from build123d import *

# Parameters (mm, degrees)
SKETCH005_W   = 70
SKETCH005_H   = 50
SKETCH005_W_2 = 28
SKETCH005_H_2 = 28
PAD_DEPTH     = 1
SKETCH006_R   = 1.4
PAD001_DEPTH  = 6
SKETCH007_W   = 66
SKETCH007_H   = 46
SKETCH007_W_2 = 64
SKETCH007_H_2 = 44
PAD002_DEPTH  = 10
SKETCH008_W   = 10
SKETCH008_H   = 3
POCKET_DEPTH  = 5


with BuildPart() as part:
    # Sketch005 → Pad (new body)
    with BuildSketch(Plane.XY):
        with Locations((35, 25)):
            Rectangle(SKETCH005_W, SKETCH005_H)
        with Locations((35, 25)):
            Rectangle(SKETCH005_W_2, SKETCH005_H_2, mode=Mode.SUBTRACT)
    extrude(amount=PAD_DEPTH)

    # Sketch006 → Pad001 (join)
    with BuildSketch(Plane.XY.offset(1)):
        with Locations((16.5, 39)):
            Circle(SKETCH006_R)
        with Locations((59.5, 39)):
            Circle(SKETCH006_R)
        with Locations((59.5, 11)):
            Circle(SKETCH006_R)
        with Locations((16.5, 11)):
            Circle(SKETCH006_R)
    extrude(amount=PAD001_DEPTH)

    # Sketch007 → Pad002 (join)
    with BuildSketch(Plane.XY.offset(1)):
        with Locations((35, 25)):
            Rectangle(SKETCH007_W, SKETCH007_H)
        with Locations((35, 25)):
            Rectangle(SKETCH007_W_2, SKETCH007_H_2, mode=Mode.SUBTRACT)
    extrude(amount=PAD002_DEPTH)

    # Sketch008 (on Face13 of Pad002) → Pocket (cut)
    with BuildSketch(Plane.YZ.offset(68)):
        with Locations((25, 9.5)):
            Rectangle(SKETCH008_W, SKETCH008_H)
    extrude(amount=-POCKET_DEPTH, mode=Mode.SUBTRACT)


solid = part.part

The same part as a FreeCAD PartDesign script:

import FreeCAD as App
import Part
import Sketcher
from FreeCAD import Vector


def add_polygon(sketch, points):
    """Adds a closed chain of lines whose ends are joined by coincident constraints."""
    first, n = sketch.GeometryCount, len(points)
    for a, b in zip(points, points[1:] + points[:1]):
        sketch.addGeometry(Part.LineSegment(App.Vector(*a, 0), App.Vector(*b, 0)), False)
    for i in range(n):
        sketch.addConstraint(Sketcher.Constraint("Coincident", first + i, 2, first + (i + 1) % n, 1))

doc = App.newDocument("Part")
body = doc.addObject("PartDesign::Body", "Body")

sketch1 = body.newObject("Sketcher::SketchObject", "Sketch")
sketch1.AttachmentSupport = (doc.getObject("XY_Plane"), [""])
sketch1.MapMode = "FlatFace"
add_polygon(sketch1, [(0, 50), (0, 0), (70, 0), (70, 50)])
add_polygon(sketch1, [(49, 11), (21, 11), (21, 39), (49, 39)])
sketch1.addConstraint([
    Sketcher.Constraint("Vertical", 0),
    Sketcher.Constraint("Horizontal", 1),
    Sketcher.Constraint("Vertical", 2),
    Sketcher.Constraint("Horizontal", 3),
    Sketcher.Constraint("Horizontal", 4),
    Sketcher.Constraint("Vertical", 5),
    Sketcher.Constraint("Horizontal", 6),
    Sketcher.Constraint("Vertical", 7),
    Sketcher.Constraint("Coincident", 0, 2, -1, 1),
    Sketcher.Constraint("Equal", 6, 5),
    Sketcher.Constraint("DistanceX", 1, 1, 1, 2, 70.0),
    Sketcher.Constraint("DistanceX", 4, 2, 4, 1, 28.0),
    Sketcher.Constraint("DistanceY", 0, 2, 0, 1, 50.0),
    Sketcher.Constraint("DistanceX", -1, 1, 4, 2, 21.0),
    Sketcher.Constraint("DistanceY", -1, 1, 4, 2, 11.0),
])
pad1 = body.newObject("PartDesign::Pad", "Pad")
pad1.Profile = sketch1
pad1.Length = 1

sketch2 = body.newObject("Sketcher::SketchObject", "Sketch001")
sketch2.AttachmentSupport = (doc.getObject("XY_Plane"), [""])
sketch2.MapMode = "FlatFace"
sketch2.AttachmentOffset = App.Placement(Vector(0, 0, 1), App.Rotation())
sketch2.addGeometry([
    Part.Circle(Vector(16.5, 39, 0), Vector(0, 0, 1), 1.4),
    Part.Circle(Vector(59.5, 39, 0), Vector(0, 0, 1), 1.4),
    Part.Circle(Vector(59.5, 11, 0), Vector(0, 0, 1), 1.4),
    Part.Circle(Vector(16.5, 11, 0), Vector(0, 0, 1), 1.4),
], False)
sketch2.addConstraint([
    Sketcher.Constraint("Equal", 0, 1),
    Sketcher.Constraint("Equal", 1, 2),
    Sketcher.Constraint("Equal", 2, 3),
    Sketcher.Constraint("Horizontal", 0, 3, 1, 3),
    Sketcher.Constraint("Horizontal", 2, 3, 3, 3),
    Sketcher.Constraint("Vertical", 1, 3, 2, 3),
    Sketcher.Constraint("Vertical", 0, 3, 3, 3),
    Sketcher.Constraint("Diameter", 0, 2.8),
    Sketcher.Constraint("DistanceY", -1, 1, 0, 3, 39.0),
    Sketcher.Constraint("DistanceY", -1, 1, 2, 3, 11.0),
    Sketcher.Constraint("DistanceX", 0, 3, 1, 3, 43.0),
    Sketcher.Constraint("DistanceX", -1, 1, 0, 3, 16.5),
])
pad2 = body.newObject("PartDesign::Pad", "Pad001")
pad2.Profile = sketch2
pad2.Length = 6

sketch3 = body.newObject("Sketcher::SketchObject", "Sketch002")
sketch3.AttachmentSupport = (doc.getObject("XY_Plane"), [""])
sketch3.MapMode = "FlatFace"
sketch3.AttachmentOffset = App.Placement(Vector(0, 0, 1), App.Rotation())
add_polygon(sketch3, [(2, 48), (2, 2), (68, 2), (68, 48)])
add_polygon(sketch3, [(67, 3), (3, 3), (3, 47), (67, 47)])
sketch3.addConstraint([
    Sketcher.Constraint("Vertical", 0),
    Sketcher.Constraint("Horizontal", 1),
    Sketcher.Constraint("Vertical", 2),
    Sketcher.Constraint("Horizontal", 3),
    Sketcher.Constraint("Horizontal", 4),
    Sketcher.Constraint("Vertical", 5),
    Sketcher.Constraint("Horizontal", 6),
    Sketcher.Constraint("Vertical", 7),
    Sketcher.Constraint("DistanceX", 1, 1, 1, 2, 66.0),
    Sketcher.Constraint("DistanceX", 4, 2, 4, 1, 64.0),
    Sketcher.Constraint("DistanceY", 0, 2, 0, 1, 46.0),
    Sketcher.Constraint("DistanceY", 5, 1, 5, 2, 44.0),
    Sketcher.Constraint("DistanceX", -1, 1, 0, 2, 2.0),
    Sketcher.Constraint("DistanceY", -1, 1, 0, 2, 2.0),
    Sketcher.Constraint("DistanceX", -1, 1, 4, 2, 3.0),
    Sketcher.Constraint("DistanceY", -1, 1, 4, 2, 3.0),
])
pad3 = body.newObject("PartDesign::Pad", "Pad002")
pad3.Profile = sketch3
pad3.Length = 10

sketch4 = body.newObject("Sketcher::SketchObject", "Sketch003")
sketch4.AttachmentSupport = (doc.getObject("YZ_Plane"), [""])
sketch4.MapMode = "FlatFace"
sketch4.AttachmentOffset = App.Placement(Vector(0, 0, 68), App.Rotation())
add_polygon(sketch4, [(20, 11), (20, 8), (30, 8), (30, 11)])
sketch4.addConstraint([
    Sketcher.Constraint("Vertical", 0),
    Sketcher.Constraint("Horizontal", 1),
    Sketcher.Constraint("Vertical", 2),
    Sketcher.Constraint("Horizontal", 3),
    Sketcher.Constraint("DistanceX", 1, 1, 1, 2, 10.0),
    Sketcher.Constraint("DistanceY", 0, 2, 0, 1, 3.0),
    Sketcher.Constraint("DistanceX", -1, 1, 0, 2, 20.0),
    Sketcher.Constraint("DistanceY", -1, 1, 0, 2, 8.0),
])
pocket1 = body.newObject("PartDesign::Pocket", "Pocket")
pocket1.Profile = sketch4
pocket1.Length = 5

doc.recompute()
